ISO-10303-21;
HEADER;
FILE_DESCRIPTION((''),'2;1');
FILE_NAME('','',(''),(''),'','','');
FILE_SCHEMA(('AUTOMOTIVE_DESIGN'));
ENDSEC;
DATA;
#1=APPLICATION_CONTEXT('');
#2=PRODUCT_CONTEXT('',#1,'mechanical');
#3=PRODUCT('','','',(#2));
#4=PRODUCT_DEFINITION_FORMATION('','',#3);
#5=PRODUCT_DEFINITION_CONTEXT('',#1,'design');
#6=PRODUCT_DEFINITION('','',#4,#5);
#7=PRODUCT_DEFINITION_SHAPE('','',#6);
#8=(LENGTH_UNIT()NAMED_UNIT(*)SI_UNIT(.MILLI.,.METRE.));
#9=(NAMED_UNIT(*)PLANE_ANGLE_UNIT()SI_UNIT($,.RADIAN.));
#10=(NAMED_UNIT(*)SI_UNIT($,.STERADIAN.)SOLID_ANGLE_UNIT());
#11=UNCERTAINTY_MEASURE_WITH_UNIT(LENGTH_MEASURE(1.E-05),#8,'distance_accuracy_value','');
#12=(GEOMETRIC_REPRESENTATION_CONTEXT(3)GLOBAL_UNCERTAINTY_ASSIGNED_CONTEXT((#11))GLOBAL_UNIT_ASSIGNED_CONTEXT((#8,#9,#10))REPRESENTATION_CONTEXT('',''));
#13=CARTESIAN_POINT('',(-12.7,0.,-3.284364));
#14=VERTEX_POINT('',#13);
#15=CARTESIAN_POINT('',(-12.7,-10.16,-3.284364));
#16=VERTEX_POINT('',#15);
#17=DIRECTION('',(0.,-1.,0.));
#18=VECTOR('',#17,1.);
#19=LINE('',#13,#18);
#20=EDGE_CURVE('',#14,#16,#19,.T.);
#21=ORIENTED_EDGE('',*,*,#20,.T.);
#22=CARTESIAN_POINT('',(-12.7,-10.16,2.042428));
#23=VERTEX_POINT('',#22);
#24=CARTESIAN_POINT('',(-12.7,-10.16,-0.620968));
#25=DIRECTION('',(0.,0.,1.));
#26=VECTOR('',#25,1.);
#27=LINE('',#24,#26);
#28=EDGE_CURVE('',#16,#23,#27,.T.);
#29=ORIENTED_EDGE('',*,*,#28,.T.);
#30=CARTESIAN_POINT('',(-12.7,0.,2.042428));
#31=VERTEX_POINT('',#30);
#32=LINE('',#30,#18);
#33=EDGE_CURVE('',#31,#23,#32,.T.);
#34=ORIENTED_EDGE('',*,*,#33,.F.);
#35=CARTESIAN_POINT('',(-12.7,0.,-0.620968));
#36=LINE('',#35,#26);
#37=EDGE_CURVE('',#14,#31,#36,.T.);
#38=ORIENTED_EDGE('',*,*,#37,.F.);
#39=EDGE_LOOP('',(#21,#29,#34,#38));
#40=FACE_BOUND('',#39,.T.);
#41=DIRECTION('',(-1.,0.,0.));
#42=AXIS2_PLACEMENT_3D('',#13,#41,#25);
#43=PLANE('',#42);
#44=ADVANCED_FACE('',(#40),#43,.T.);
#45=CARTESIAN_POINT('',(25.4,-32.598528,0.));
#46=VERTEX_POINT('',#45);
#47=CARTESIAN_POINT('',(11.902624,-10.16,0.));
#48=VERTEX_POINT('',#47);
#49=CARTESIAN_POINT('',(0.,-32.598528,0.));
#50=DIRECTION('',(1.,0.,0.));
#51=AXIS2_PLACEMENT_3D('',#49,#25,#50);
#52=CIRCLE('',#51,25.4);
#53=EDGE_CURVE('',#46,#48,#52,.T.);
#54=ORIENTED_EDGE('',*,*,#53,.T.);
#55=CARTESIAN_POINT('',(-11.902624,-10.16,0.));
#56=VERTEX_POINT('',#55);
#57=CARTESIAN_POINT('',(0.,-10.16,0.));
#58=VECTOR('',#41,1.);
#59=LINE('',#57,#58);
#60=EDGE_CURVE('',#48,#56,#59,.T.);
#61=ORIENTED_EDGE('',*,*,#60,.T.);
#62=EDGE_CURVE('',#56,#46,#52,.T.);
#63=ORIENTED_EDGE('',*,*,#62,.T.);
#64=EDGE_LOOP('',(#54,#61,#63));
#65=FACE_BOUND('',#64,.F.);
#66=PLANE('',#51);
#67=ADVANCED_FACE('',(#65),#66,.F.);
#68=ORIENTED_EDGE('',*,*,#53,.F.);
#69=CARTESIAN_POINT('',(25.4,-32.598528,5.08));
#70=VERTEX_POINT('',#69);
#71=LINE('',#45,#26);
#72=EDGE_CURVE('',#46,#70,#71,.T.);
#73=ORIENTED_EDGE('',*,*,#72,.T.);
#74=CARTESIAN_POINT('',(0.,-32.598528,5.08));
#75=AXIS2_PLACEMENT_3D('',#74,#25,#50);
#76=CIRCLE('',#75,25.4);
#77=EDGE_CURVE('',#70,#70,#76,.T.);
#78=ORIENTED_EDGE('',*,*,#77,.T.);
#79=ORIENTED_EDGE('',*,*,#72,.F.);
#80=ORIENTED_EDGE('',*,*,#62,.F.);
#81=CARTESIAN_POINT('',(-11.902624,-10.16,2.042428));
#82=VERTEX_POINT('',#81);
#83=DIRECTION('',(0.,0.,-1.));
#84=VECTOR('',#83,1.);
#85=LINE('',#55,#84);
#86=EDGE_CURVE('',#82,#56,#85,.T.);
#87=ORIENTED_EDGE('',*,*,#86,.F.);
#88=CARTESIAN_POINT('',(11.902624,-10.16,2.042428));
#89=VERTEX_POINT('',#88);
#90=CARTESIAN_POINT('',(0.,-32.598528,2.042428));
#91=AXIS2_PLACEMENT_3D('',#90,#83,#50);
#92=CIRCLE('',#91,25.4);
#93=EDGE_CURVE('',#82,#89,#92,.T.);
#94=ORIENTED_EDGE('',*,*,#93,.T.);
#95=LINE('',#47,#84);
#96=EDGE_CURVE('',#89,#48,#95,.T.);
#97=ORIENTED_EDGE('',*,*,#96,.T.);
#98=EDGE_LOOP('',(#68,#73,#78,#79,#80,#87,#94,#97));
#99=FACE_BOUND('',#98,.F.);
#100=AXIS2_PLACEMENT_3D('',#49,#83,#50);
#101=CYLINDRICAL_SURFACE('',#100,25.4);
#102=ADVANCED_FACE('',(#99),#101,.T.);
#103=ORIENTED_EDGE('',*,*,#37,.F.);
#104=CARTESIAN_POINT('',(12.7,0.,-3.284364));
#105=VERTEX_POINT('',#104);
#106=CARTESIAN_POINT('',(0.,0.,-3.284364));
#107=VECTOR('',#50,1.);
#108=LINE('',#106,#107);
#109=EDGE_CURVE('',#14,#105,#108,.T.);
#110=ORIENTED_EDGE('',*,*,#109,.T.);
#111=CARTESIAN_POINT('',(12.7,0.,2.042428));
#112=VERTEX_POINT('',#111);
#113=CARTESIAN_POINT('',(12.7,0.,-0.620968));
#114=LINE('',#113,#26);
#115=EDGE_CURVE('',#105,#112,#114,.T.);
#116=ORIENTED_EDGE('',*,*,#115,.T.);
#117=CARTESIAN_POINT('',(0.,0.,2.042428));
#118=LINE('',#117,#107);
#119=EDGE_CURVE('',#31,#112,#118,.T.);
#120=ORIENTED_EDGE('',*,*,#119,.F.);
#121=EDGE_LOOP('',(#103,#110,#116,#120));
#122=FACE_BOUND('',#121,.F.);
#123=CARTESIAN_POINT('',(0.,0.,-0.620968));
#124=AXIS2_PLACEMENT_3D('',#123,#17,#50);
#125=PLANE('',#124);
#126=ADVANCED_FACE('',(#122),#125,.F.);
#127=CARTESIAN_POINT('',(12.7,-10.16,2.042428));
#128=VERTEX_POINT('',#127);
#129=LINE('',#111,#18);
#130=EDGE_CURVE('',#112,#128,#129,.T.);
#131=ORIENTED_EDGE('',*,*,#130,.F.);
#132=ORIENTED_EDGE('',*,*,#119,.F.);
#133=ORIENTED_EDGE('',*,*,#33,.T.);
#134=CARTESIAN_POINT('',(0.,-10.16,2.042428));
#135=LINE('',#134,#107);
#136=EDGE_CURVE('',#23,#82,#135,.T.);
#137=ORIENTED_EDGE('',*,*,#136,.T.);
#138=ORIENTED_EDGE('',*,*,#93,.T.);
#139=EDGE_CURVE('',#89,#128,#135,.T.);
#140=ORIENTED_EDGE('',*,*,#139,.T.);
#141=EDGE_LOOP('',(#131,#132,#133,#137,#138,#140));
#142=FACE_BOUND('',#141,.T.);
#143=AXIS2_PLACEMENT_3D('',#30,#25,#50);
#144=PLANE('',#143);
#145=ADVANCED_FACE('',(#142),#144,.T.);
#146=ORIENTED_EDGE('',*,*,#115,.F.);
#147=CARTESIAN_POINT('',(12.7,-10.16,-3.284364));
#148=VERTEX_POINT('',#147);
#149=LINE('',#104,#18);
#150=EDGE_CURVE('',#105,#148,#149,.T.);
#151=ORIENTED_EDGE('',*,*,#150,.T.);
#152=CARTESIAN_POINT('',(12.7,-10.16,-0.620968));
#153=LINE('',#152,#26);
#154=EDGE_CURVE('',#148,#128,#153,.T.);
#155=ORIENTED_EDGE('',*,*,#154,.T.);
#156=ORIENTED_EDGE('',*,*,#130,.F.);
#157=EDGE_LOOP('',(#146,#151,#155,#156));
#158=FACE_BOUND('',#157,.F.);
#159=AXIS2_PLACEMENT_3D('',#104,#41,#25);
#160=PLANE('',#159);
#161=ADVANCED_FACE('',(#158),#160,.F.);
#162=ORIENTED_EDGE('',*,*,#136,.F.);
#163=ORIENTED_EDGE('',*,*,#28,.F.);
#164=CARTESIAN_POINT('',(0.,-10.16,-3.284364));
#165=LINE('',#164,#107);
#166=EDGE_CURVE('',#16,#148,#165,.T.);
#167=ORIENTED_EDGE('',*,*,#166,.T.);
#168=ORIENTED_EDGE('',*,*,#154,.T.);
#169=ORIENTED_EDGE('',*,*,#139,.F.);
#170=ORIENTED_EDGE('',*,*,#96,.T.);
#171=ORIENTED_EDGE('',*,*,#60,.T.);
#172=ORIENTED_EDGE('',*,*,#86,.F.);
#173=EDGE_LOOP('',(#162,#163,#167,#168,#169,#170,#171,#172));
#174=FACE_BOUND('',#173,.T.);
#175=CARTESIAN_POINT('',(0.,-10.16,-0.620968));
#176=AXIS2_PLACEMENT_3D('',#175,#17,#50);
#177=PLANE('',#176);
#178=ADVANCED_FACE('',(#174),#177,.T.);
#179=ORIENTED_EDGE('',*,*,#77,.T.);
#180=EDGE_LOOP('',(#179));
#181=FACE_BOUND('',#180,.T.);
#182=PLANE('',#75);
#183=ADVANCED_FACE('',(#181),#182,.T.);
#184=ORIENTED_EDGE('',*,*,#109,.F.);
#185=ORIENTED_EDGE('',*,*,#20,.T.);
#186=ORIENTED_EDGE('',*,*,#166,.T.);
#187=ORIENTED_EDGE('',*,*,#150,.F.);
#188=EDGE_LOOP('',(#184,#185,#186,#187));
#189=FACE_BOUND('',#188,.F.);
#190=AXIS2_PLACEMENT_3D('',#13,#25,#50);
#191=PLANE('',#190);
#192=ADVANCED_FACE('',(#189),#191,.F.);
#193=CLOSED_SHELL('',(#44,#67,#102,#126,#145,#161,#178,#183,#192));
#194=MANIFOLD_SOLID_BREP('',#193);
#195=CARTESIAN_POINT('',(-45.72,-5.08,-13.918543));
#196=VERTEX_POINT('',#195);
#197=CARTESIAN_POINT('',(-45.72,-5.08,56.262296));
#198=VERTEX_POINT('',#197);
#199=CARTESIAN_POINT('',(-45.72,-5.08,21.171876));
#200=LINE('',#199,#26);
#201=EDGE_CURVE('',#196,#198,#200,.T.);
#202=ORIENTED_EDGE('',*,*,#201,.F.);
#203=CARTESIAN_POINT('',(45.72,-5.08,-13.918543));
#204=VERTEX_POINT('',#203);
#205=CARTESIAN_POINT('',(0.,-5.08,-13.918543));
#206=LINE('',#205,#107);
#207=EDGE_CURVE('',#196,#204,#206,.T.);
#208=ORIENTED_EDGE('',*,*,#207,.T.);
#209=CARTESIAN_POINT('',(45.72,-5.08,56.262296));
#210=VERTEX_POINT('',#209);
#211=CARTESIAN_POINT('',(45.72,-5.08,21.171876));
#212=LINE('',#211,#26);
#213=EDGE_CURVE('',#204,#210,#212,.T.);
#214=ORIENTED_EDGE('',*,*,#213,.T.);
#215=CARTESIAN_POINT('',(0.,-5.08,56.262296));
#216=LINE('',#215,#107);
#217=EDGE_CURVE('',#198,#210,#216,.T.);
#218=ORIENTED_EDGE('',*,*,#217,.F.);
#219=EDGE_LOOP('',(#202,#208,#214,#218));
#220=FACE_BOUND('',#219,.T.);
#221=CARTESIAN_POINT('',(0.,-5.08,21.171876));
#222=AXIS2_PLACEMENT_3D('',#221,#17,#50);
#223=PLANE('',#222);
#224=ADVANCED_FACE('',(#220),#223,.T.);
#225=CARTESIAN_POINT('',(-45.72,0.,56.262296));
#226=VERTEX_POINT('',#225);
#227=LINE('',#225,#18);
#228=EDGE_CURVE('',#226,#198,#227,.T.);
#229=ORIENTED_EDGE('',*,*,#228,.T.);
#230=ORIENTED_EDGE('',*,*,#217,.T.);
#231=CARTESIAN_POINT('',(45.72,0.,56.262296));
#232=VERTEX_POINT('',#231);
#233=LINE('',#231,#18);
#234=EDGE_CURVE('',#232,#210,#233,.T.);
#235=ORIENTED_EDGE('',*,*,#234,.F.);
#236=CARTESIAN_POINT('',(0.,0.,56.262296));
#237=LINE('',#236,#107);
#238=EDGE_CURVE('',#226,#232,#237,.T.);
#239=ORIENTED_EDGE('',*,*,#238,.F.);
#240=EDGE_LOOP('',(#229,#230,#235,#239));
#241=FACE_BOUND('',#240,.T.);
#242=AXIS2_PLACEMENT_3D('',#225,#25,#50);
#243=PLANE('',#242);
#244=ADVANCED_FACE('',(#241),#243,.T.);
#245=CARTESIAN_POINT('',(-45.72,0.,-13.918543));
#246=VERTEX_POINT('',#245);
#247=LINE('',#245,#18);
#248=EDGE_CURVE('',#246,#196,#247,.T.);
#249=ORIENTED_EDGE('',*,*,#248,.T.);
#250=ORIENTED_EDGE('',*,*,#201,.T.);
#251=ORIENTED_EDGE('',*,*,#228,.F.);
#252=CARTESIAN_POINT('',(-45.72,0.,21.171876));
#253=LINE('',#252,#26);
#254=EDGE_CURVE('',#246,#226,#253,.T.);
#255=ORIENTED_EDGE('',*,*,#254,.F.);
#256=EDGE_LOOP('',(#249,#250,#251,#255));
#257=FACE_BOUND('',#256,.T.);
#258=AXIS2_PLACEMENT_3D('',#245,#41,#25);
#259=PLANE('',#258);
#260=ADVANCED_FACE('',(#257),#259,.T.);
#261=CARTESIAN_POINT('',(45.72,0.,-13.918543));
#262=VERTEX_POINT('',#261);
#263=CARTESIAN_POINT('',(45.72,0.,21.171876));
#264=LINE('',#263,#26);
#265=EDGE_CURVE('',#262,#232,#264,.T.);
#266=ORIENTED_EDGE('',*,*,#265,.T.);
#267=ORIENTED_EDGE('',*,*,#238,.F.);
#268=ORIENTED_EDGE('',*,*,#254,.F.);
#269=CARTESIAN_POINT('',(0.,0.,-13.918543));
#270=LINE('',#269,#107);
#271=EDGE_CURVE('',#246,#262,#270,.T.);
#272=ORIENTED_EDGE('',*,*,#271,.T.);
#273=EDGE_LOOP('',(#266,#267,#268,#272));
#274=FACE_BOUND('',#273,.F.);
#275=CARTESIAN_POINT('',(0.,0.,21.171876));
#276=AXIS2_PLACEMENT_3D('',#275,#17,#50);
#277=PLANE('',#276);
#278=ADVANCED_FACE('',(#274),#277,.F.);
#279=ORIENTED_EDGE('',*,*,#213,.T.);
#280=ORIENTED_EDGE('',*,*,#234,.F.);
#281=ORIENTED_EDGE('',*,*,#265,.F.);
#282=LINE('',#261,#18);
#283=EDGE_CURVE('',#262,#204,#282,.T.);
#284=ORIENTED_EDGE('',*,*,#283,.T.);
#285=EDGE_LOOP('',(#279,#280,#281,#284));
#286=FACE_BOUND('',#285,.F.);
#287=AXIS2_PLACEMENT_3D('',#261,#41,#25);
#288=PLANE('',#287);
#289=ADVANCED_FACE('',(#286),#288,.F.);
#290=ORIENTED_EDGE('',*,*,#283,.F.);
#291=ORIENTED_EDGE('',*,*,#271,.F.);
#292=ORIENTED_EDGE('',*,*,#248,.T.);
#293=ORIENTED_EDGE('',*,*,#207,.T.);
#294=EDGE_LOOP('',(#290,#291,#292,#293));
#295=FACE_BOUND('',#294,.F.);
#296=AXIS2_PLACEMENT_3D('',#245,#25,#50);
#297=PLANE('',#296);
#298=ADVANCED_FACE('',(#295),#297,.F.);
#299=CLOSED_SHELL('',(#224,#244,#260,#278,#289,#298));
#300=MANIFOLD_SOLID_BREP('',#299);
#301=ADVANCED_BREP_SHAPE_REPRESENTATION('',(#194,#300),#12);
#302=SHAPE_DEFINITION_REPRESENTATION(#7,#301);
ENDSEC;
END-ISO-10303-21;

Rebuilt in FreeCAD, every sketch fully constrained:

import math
import FreeCAD as App
import Part
import Sketcher
from FreeCAD import Vector
Q = App.Units.Quantity

doc = App.newDocument("Part")
body = doc.addObject("PartDesign::Body", "Body")

# Sketch on XZ plane
sketch1 = body.newObject("Sketcher::SketchObject", "Sketch")
sketch1.AttachmentSupport = (doc.getObject("XZ_Plane"), [""])
sketch1.MapMode = "FlatFace"
sketch1.addGeometry([
    Part.LineSegment(Vector(-46, 56, 0), Vector(-46, -14, 0)),
    Part.LineSegment(Vector(-46, -14, 0), Vector(46, -14, 0)),
    Part.LineSegment(Vector(46, -14, 0), Vector(46, 56, 0)),
    Part.LineSegment(Vector(46, 56, 0), Vector(-46, 56, 0)),
], False)
sketch1.addConstraint([
    Sketcher.Constraint("Coincident", 0, 2, 1, 1),
    Sketcher.Constraint("Coincident", 1, 2, 2, 1),
    Sketcher.Constraint("Coincident", 2, 2, 3, 1),
    Sketcher.Constraint("Coincident", 3, 2, 0, 1),
    Sketcher.Constraint("Vertical", 0),
    Sketcher.Constraint("Horizontal", 1),
    Sketcher.Constraint("Vertical", 2),
    Sketcher.Constraint("Horizontal", 3),
    Sketcher.Constraint("DistanceX", 1, 1, 1, 2, Q("3.6 in")),
    Sketcher.Constraint("DistanceX", 0, 2, -1, 1, Q("1.8 in")),
    Sketcher.Constraint("DistanceY", 0, 2, 0, 1, 70.180839),
    Sketcher.Constraint("DistanceY", 0, 2, -1, 1, 13.918543),
])
pad1 = body.newObject("PartDesign::Pad", "Pad")
pad1.Profile = sketch1
pad1.Length = Q("0.2 in")

# Sketch on XY plane
sketch2 = body.newObject("Sketcher::SketchObject", "Sketch001")
sketch2.AttachmentSupport = (doc.getObject("XY_Plane"), [""])
sketch2.MapMode = "FlatFace"
sketch2.addGeometry([
    Part.ArcOfCircle(Part.Circle(Vector(0, -33, 0), Vector(0, 0, 1), 22), math.radians(0), math.radians(90)),
    Part.ArcOfCircle(Part.Circle(Vector(0, -33, 0), Vector(0, 0, 1), 22), math.radians(90), math.radians(270)),
    Part.ArcOfCircle(Part.Circle(Vector(0, -33, 0), Vector(0, 0, 1), 22), math.radians(-90), math.radians(0)),
], False)
sketch2.addConstraint([
    Sketcher.Constraint("Tangent", 0, 2, 1, 1),
    Sketcher.Constraint("Tangent", 1, 2, 2, 1),
    Sketcher.Constraint("Tangent", 2, 2, 0, 1),
    Sketcher.Constraint("PointOnObject", 0, 3, -2),
    Sketcher.Constraint("PointOnObject", 0, 2, -2),
    Sketcher.Constraint("PointOnObject", 1, 2, -2),
    Sketcher.Constraint("Horizontal", 1, 3, 2, 2),
    Sketcher.Constraint("Radius", 0, 21.869073),
    Sketcher.Constraint("DistanceY", 0, 3, -1, 1, 32.575661),
])
pocket1 = body.newObject("PartDesign::Pocket", "Pocket")
pocket1.Profile = sketch2
pocket1.Length = Q("0.2 in")
body2 = doc.addObject("PartDesign::Body", "Body001")

# Sketch on XZ plane
sketch3 = body2.newObject("Sketcher::SketchObject", "Sketch002")
sketch3.AttachmentSupport = (doc.getObject("XZ_Plane001"), [""])
sketch3.MapMode = "FlatFace"
sketch3.addGeometry([
    Part.LineSegment(Vector(-13, 2, 0), Vector(-13, -3, 0)),
    Part.LineSegment(Vector(-13, -3, 0), Vector(13, -3, 0)),
    Part.LineSegment(Vector(13, -3, 0), Vector(13, 2, 0)),
    Part.LineSegment(Vector(13, 2, 0), Vector(-13, 2, 0)),
], False)
sketch3.addConstraint([
    Sketcher.Constraint("Coincident", 0, 2, 1, 1),
    Sketcher.Constraint("Coincident", 1, 2, 2, 1),
    Sketcher.Constraint("Coincident", 2, 2, 3, 1),
    Sketcher.Constraint("Coincident", 3, 2, 0, 1),
    Sketcher.Constraint("Vertical", 0),
    Sketcher.Constraint("Horizontal", 1),
    Sketcher.Constraint("Vertical", 2),
    Sketcher.Constraint("Horizontal", 3),
    Sketcher.Constraint("DistanceX", 1, 1, 1, 2, Q("1 in")),
    Sketcher.Constraint("DistanceX", 0, 2, -1, 1, Q("0.5 in")),
    Sketcher.Constraint("DistanceY", 0, 2, 0, 1, 5.326792),
    Sketcher.Constraint("DistanceY", -1, 1, 2, 2, 2.042428),
])
pad2 = body2.newObject("PartDesign::Pad", "Pad001")
pad2.Profile = sketch3
pad2.Length = Q("0.4 in")

# Sketch on XY plane
sketch4 = body2.newObject("Sketcher::SketchObject", "Sketch003")
sketch4.AttachmentSupport = (doc.getObject("XY_Plane001"), [""])
sketch4.MapMode = "FlatFace"
sketch4.addGeometry(Part.Circle(Vector(0, -33, 0), Vector(0, 0, 1), 25), False)
sketch4.addConstraint([
    Sketcher.Constraint("PointOnObject", 0, 3, -2),
    Sketcher.Constraint("Diameter", 0, Q("2 in")),
    Sketcher.Constraint("DistanceY", 0, 3, -1, 1, 32.598528),
])
pad3 = body2.newObject("PartDesign::Pad", "Pad002")
pad3.Profile = sketch4
pad3.Length = Q("0.2 in")

doc.recompute()
